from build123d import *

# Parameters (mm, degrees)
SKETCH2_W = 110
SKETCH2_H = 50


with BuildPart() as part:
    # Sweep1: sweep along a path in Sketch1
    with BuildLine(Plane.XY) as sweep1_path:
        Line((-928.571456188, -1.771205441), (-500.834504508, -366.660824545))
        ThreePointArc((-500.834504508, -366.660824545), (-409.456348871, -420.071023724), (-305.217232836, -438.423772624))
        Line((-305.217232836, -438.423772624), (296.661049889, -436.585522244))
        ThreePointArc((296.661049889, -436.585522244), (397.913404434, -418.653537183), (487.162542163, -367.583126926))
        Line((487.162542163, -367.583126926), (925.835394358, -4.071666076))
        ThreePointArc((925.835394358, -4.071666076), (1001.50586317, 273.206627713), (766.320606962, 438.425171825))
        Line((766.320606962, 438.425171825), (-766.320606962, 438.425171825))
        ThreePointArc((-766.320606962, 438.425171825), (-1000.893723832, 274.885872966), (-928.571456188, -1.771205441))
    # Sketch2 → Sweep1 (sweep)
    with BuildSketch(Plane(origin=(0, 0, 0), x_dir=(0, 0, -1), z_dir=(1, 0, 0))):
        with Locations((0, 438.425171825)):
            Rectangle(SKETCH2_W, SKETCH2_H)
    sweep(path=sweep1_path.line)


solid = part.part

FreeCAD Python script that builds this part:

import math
import FreeCAD as App
import Part
import Sketcher
Q = App.Units.Quantity

doc = App.newDocument("Part")
body = doc.addObject("PartDesign::Body", "Body")

sketch1 = body.newObject("Sketcher::SketchObject", "Sketch")
sketch1.AttachmentSupport = (doc.getObject("YZ_Plane"), [""])
sketch1.MapMode = "FlatFace"
sketch1.addGeometry(Part.LineSegment(App.Vector(463, 55, 0), App.Vector(413, 55, 0)), False)
sketch1.addGeometry(Part.LineSegment(App.Vector(413, 55, 0), App.Vector(413, -55, 0)), False)
sketch1.addGeometry(Part.LineSegment(App.Vector(413, -55, 0), App.Vector(463, -55, 0)), False)
sketch1.addGeometry(Part.LineSegment(App.Vector(463, -55, 0), App.Vector(463, 55, 0)), False)
sketch1.addConstraint(Sketcher.Constraint("Coincident", 0, 2, 1, 1))
sketch1.addConstraint(Sketcher.Constraint("Coincident", 1, 2, 2, 1))
sketch1.addConstraint(Sketcher.Constraint("Coincident", 2, 2, 3, 1))
sketch1.addConstraint(Sketcher.Constraint("Coincident", 3, 2, 0, 1))
sketch1.addConstraint(Sketcher.Constraint("Horizontal", 0))
sketch1.addConstraint(Sketcher.Constraint("Vertical", 1))
sketch1.addConstraint(Sketcher.Constraint("Horizontal", 2))
sketch1.addConstraint(Sketcher.Constraint("Vertical", 3))
sketch1.addConstraint(Sketcher.Constraint("DistanceX", 0, 2, 0, 1, Q("50 mm")))
sketch1.addConstraint(Sketcher.Constraint("DistanceY", 1, 2, 1, 1, Q("110 mm")))
sketch1.addConstraint(Sketcher.Constraint("DistanceY", -1, 1, 0, 2, Q("55 mm")))
sketch1.addConstraint(Sketcher.Constraint("DistanceX", -1, 1, 0, 2, Q("413.425172 mm")))

sketch2 = body.newObject("Sketcher::SketchObject", "Sketch001")
sketch2.AttachmentSupport = (doc.getObject("XY_Plane"), [""])
sketch2.MapMode = "FlatFace"
sketch2.addGeometry(Part.LineSegment(App.Vector(-929, -2, 0), App.Vector(-501, -367, 0)), False)
sketch2.addGeometry(Part.ArcOfCircle(Part.Circle(App.Vector(-306, -138, 0), App.Vector(0, 0, 1), 300), math.radians(-130), math.radians(-90)), False)
sketch2.addGeometry(Part.LineSegment(App.Vector(-305, -438, 0), App.Vector(297, -437, 0)), False)
sketch2.addGeometry(Part.ArcOfCircle(Part.Circle(App.Vector(296, -137, 0), App.Vector(0, 0, 1), 300), math.radians(-90), math.radians(-50)), False)
sketch2.addGeometry(Part.LineSegment(App.Vector(487, -368, 0), App.Vector(926, -4, 0)), False)
sketch2.addGeometry(Part.ArcOfCircle(Part.Circle(App.Vector(766, 188, 0), App.Vector(0, 0, 1), 250), math.radians(-50), math.radians(90)), False)
sketch2.addGeometry(Part.LineSegment(App.Vector(766, 438, 0), App.Vector(-766, 438, 0)), False)
sketch2.addGeometry(Part.ArcOfCircle(Part.Circle(App.Vector(-766, 188, 0), App.Vector(0, 0, 1), 250), math.radians(90), math.radians(230)), False)
sketch2.addConstraint(Sketcher.Constraint("Tangent", 0, 2, 1, 1))
sketch2.addConstraint(Sketcher.Constraint("Tangent", 1, 2, 2, 1))
sketch2.addConstraint(Sketcher.Constraint("Tangent", 2, 2, 3, 1))
sketch2.addConstraint(Sketcher.Constraint("Tangent", 3, 2, 4, 1))
sketch2.addConstraint(Sketcher.Constraint("Tangent", 4, 2, 5, 1))
sketch2.addConstraint(Sketcher.Constraint("Tangent", 5, 2, 6, 1))
sketch2.addConstraint(Sketcher.Constraint("Tangent", 6, 2, 7, 1))
sketch2.addConstraint(Sketcher.Constraint("Tangent", 7, 2, 0, 1))
sketch2.addConstraint(Sketcher.Constraint("Horizontal", 6))
sketch2.addConstraint(Sketcher.Constraint("Equal", 1, 3))
sketch2.addConstraint(Sketcher.Constraint("Equal", 5, 7))
sketch2.addConstraint(Sketcher.Constraint("Radius", 1, Q("300 mm")))
sketch2.addConstraint(Sketcher.Constraint("Radius", 5, Q("250 mm")))
sketch2.addConstraint(Sketcher.Constraint("DistanceX", 0, 2, 3, 3, Q("796.579302 mm")))
sketch2.addConstraint(Sketcher.Constraint("DistanceY", 3, 2, 5, 3, Q("556.008299 mm")))
sketch2.addConstraint(Sketcher.Constraint("Distance", 2, Q("601.88109 mm")))
sketch2.addConstraint(Sketcher.Constraint("Distance", 4, Q("569.714361 mm")))
sketch2.addConstraint(Sketcher.Constraint("DistanceX", 6, 2, 6, 1, Q("1532.641214 mm")))
sketch2.addConstraint(Sketcher.Constraint("DistanceY", 1, 3, -1, 1, Q("138.425172 mm")))
sketch2.addConstraint(Sketcher.Constraint("DistanceX", -1, 1, 2, 2, Q("296.66105 mm")))
doc.recompute()

additivepipe = body.newObject("PartDesign::AdditivePipe", "AdditivePipe")
additivepipe.Profile = sketch1
additivepipe.Spine = (sketch2, ["Edge1", "Edge2", "Edge3", "Edge4", "Edge5", "Edge6", "Edge7", "Edge8"])

doc.recompute()
